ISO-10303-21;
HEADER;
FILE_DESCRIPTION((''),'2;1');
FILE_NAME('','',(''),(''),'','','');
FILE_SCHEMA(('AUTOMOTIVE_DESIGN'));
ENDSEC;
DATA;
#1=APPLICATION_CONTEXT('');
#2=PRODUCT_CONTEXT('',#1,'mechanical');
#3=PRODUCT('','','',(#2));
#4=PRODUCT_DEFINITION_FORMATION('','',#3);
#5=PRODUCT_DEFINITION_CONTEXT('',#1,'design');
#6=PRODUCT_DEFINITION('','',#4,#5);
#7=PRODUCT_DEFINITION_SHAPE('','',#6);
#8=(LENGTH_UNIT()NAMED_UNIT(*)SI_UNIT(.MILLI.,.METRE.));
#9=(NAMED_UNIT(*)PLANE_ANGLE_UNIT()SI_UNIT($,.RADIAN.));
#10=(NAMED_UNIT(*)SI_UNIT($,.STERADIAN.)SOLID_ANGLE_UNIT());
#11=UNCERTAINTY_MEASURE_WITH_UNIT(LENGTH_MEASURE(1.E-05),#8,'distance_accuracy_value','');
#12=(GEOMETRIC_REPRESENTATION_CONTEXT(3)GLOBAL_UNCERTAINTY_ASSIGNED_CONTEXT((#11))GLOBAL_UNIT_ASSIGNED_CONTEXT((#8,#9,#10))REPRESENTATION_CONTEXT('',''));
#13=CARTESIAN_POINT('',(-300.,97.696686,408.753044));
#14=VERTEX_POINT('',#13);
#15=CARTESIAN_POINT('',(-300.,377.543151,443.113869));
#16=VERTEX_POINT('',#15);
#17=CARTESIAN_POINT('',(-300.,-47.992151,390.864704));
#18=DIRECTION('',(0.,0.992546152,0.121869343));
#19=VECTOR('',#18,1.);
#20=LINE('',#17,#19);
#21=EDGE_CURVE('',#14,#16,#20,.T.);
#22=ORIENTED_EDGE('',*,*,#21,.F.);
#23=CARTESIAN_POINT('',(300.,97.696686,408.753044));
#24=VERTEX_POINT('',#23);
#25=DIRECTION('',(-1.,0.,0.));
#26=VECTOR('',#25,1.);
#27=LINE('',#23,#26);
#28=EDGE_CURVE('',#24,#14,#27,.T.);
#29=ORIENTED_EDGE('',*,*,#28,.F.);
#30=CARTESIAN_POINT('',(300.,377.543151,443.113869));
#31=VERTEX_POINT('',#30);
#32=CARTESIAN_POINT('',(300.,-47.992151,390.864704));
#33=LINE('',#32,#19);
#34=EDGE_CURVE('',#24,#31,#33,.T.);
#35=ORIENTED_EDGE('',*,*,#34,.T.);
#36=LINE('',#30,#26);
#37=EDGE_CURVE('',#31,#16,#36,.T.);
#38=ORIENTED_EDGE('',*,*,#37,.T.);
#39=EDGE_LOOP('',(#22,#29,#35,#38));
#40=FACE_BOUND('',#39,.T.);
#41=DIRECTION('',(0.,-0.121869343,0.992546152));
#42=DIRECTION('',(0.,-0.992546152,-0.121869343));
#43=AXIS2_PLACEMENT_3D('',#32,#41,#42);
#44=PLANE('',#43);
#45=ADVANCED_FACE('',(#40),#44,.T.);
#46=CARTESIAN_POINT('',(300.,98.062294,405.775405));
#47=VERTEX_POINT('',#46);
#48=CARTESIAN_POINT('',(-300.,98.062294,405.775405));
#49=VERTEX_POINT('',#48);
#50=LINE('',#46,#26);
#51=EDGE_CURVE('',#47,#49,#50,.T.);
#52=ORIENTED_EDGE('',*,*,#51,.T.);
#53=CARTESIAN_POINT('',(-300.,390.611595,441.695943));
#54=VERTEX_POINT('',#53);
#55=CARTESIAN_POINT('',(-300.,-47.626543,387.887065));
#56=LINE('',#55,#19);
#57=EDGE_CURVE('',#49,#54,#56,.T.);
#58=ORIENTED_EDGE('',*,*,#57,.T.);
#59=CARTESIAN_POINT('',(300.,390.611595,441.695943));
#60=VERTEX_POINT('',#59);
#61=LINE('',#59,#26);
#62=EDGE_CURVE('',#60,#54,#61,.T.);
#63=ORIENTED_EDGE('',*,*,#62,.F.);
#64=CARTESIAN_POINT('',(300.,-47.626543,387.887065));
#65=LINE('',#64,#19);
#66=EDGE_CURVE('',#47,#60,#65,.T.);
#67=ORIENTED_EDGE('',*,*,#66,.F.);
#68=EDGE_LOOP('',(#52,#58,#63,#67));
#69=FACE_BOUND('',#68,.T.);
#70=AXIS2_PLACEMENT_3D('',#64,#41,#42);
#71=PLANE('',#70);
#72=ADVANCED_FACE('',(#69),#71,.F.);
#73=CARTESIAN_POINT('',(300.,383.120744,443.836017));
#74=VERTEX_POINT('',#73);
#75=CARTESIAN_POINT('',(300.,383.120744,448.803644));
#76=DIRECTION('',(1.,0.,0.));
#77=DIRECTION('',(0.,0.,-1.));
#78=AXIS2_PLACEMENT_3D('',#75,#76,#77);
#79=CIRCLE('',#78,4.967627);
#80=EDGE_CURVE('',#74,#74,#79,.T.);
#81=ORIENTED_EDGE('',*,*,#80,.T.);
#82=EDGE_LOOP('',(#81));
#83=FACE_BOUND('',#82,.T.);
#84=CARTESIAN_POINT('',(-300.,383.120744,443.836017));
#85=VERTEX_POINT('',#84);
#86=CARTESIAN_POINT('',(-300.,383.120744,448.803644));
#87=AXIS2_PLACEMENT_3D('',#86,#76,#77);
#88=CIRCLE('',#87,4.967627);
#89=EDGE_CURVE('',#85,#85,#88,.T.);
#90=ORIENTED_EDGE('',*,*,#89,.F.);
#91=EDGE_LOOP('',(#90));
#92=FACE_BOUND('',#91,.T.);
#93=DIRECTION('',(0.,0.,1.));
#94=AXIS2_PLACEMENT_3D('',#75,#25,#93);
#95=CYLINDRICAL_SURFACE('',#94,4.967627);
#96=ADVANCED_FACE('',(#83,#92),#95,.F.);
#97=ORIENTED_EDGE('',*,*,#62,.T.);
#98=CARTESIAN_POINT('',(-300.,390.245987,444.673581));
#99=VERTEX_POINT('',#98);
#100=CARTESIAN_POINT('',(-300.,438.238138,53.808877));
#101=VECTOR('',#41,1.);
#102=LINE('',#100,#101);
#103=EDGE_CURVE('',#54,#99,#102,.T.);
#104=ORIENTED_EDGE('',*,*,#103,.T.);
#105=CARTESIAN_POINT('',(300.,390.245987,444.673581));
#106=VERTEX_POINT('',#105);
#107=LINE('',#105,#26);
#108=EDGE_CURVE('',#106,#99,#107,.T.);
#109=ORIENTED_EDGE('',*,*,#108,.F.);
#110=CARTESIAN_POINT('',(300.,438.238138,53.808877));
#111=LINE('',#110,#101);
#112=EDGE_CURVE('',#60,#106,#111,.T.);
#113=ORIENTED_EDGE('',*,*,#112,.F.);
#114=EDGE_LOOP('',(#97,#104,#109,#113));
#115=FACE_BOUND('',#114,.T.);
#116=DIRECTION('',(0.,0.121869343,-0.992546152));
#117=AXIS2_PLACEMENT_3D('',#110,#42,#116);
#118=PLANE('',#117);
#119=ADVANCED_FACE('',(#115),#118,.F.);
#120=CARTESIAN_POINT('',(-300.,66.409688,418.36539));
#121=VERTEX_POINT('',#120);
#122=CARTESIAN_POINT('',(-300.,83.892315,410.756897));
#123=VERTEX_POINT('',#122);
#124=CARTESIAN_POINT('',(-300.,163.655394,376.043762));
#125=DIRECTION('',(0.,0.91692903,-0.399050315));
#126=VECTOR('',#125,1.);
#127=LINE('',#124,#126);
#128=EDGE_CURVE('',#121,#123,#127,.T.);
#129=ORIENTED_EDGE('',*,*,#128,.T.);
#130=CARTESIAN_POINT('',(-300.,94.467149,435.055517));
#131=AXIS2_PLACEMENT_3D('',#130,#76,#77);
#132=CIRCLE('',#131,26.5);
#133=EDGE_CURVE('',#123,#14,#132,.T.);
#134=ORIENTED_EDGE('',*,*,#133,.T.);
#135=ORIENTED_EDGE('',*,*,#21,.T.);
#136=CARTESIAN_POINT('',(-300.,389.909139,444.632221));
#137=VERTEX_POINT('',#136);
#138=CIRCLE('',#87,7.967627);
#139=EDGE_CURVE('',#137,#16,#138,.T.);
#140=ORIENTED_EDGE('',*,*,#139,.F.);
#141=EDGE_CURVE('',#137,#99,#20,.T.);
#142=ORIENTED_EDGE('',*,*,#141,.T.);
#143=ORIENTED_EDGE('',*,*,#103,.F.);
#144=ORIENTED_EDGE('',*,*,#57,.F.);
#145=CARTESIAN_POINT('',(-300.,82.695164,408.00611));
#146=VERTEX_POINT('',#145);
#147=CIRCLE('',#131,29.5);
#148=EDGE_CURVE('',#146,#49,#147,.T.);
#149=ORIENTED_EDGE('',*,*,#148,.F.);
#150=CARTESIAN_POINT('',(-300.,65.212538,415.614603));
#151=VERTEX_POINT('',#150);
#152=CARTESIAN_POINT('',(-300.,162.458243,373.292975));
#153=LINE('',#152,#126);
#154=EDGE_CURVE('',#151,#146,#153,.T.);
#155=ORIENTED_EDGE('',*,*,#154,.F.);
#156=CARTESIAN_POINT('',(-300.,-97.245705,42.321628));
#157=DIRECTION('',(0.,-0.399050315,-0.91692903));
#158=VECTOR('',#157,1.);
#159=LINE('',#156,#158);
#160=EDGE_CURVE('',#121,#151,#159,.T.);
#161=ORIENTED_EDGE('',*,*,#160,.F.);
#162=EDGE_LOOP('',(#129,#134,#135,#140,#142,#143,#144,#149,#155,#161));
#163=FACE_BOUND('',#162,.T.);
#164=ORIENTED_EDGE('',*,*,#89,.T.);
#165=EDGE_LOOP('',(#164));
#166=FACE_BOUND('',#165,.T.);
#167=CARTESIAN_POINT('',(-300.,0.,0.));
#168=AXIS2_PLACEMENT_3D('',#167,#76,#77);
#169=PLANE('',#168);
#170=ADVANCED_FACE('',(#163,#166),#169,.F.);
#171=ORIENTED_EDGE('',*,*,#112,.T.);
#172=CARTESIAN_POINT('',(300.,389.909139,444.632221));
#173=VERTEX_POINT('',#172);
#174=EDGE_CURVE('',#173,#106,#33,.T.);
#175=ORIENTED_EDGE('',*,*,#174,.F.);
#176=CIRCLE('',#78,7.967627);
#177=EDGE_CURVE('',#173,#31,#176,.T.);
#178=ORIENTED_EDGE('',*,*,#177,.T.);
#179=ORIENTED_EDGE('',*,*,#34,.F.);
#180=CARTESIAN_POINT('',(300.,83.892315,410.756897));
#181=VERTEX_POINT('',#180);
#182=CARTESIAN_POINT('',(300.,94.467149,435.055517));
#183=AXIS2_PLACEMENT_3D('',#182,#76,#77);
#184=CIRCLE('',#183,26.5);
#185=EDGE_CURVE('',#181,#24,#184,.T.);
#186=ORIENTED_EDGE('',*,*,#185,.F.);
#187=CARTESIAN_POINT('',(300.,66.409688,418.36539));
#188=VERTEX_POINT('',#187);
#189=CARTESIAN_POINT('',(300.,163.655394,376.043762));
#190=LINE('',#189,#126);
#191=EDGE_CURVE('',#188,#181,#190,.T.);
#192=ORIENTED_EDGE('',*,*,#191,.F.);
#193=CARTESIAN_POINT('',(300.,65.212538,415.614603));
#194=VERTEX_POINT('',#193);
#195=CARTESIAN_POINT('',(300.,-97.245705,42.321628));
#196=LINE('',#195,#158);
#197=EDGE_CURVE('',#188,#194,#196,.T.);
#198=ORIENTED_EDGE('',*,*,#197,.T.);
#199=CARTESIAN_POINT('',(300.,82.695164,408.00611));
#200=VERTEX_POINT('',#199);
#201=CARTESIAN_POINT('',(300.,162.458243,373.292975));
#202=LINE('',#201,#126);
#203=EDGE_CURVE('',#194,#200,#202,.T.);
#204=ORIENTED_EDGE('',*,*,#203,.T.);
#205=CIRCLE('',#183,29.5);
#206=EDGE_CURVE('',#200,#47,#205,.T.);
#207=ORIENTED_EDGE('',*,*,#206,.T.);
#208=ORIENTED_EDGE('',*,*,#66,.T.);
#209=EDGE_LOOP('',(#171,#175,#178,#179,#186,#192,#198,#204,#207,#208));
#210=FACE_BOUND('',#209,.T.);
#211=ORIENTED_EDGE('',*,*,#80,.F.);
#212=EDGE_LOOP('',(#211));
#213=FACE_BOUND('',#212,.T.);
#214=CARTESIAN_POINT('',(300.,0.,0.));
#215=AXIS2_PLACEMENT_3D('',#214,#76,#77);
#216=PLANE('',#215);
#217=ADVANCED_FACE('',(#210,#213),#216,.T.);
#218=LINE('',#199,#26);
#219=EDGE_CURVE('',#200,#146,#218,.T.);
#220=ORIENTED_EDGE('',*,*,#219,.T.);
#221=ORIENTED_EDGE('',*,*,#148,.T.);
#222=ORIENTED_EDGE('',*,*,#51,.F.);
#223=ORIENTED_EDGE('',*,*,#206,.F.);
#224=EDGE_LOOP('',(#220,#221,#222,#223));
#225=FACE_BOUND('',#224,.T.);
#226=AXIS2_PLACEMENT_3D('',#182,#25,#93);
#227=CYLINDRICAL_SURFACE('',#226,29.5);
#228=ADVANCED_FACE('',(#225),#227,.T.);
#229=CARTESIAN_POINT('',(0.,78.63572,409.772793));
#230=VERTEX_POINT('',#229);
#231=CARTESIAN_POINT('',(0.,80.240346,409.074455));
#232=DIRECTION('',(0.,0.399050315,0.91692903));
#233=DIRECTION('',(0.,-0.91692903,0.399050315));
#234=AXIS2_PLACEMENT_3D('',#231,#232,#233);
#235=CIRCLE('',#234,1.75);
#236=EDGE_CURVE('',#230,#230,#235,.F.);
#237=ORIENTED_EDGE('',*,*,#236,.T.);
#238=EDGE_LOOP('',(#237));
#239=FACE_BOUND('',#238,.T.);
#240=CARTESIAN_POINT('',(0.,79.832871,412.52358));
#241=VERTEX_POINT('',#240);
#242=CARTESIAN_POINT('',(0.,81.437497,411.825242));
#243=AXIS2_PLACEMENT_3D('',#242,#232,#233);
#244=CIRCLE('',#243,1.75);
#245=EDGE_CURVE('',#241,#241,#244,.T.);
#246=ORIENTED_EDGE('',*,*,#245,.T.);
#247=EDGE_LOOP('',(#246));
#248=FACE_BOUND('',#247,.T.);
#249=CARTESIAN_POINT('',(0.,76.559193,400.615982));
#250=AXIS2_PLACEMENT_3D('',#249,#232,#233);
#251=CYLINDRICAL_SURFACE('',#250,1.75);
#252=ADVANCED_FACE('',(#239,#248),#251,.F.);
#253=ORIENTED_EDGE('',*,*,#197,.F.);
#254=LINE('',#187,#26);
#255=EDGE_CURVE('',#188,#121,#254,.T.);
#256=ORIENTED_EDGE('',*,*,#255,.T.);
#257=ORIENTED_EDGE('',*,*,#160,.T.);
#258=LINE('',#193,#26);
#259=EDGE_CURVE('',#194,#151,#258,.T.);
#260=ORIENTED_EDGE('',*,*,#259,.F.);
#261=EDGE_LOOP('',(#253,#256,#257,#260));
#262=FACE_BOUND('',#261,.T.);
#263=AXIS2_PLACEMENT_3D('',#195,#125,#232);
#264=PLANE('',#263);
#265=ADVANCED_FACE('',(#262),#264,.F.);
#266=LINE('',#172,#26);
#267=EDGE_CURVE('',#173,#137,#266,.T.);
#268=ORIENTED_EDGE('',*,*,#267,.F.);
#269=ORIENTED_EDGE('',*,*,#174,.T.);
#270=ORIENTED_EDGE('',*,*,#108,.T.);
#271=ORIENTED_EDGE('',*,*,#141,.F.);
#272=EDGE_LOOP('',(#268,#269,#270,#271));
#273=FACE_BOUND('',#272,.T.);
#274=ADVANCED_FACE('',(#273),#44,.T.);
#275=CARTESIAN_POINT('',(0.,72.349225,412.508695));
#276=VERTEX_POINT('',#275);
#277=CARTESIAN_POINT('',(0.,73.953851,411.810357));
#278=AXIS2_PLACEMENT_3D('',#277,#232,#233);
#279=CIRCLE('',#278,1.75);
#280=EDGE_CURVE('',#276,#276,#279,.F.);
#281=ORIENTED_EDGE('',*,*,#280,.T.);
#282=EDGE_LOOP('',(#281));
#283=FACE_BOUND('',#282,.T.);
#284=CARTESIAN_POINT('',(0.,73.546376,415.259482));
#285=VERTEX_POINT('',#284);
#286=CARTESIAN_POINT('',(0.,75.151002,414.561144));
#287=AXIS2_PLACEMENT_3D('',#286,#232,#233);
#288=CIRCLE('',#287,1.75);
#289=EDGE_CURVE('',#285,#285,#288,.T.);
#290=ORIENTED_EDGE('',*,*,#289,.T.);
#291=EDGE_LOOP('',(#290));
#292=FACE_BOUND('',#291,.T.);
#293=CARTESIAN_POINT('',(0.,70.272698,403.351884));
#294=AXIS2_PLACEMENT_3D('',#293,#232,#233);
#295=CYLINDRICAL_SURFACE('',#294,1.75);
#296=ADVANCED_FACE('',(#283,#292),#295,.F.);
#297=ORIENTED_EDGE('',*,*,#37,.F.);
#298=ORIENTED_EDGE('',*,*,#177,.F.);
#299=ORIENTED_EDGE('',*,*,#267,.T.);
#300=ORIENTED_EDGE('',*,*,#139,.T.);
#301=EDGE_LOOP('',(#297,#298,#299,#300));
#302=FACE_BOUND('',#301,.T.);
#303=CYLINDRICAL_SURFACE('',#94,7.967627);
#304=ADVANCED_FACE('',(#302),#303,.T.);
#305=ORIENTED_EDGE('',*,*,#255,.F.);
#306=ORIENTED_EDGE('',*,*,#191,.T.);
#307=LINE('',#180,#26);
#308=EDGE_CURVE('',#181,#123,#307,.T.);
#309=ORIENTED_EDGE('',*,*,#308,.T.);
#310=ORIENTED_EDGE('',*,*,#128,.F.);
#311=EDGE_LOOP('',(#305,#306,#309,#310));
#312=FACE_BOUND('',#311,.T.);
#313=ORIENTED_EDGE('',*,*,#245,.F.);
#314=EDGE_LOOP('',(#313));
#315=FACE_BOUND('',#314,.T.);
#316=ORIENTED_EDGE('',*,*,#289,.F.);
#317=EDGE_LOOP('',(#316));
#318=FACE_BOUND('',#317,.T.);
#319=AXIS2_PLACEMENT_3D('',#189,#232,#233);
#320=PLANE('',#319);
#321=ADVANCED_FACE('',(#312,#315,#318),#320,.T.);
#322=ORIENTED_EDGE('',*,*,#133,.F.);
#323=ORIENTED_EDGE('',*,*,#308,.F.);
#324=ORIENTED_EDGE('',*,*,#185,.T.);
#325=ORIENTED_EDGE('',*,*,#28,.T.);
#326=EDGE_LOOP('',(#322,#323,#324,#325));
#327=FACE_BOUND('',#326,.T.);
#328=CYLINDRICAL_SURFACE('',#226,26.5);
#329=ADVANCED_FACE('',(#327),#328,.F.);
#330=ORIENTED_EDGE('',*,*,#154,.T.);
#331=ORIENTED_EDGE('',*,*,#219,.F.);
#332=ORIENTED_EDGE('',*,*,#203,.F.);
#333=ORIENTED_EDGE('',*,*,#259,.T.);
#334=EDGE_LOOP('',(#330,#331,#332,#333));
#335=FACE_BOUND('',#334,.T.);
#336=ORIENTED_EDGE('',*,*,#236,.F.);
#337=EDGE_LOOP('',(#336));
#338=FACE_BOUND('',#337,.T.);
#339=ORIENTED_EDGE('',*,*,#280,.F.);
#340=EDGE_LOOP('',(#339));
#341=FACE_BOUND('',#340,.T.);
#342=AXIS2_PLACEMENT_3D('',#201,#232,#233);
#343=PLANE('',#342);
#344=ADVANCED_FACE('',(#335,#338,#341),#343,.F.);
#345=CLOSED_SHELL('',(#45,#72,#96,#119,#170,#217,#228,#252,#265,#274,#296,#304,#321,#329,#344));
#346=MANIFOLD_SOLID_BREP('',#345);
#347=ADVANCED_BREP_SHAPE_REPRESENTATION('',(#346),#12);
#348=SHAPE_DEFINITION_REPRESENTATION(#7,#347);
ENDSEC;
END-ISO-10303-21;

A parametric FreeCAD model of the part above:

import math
import FreeCAD as App
import Part
import Sketcher

V = App.Vector
Q = App.Units.Quantity

doc = App.newDocument("Part")
body = doc.addObject("PartDesign::Body", "Body")

sketch1 = body.newObject("Sketcher::SketchObject", "Sketch")
sketch1.AttachmentSupport = (doc.getObject("YZ_Plane"), [""])
sketch1.MapMode = "FlatFace"
sketch1.addGeometry(Part.LineSegment(V(384.09, 440.9, 0), V(390.61, 441.7, 0)), False)
sketch1.addGeometry(Part.LineSegment(V(390.61, 441.7, 0), V(390.25, 444.67, 0)), False)
sketch1.addGeometry(Part.LineSegment(V(390.25, 444.67, 0), V(389.91, 444.63, 0)), False)
sketch1.addGeometry(Part.ArcOfCircle(Part.Circle(V(383.12, 448.8, 0), V(0, 0, 1), 7.97), math.radians(-32), math.radians(226)), False)
sketch1.addGeometry(Part.LineSegment(V(377.54, 443.11, 0), V(97.7, 408.75, 0)), False)
sketch1.addGeometry(Part.ArcOfCircle(Part.Circle(V(94.47, 435.06, 0), V(0, 0, 1), 26.5), math.radians(-114), math.radians(-83)), False)
sketch1.addGeometry(Part.LineSegment(V(83.89, 410.76, 0), V(66.41, 418.37, 0)), False)
sketch1.addGeometry(Part.LineSegment(V(66.41, 418.37, 0), V(65.21, 415.61, 0)), False)
sketch1.addGeometry(Part.LineSegment(V(65.21, 415.61, 0), V(82.7, 408.01, 0)), False)
sketch1.addGeometry(Part.ArcOfCircle(Part.Circle(V(94.47, 435.06, 0), V(0, 0, 1), 29.5), math.radians(-114), math.radians(-83)), False)
sketch1.addGeometry(Part.LineSegment(V(98.06, 405.78, 0), V(384.09, 440.9, 0)), False)
sketch1.addGeometry(Part.ArcOfCircle(Part.Circle(V(383.12, 448.8, 0), V(0, 0, 1), 4.97), math.radians(-83), math.radians(270)), False)
sketch1.addGeometry(Part.ArcOfCircle(Part.Circle(V(383.12, 448.8, 0), V(0, 0, 1), 4.97), math.radians(-90), math.radians(-83)), False)
sketch1.addConstraint(Sketcher.Constraint("Coincident", 0, 2, 1, 1))
sketch1.addConstraint(Sketcher.Constraint("Coincident", 1, 2, 2, 1))
sketch1.addConstraint(Sketcher.Constraint("Coincident", 2, 2, 3, 1))
sketch1.addConstraint(Sketcher.Constraint("Coincident", 3, 2, 4, 1))
sketch1.addConstraint(Sketcher.Constraint("Tangent", 4, 2, 5, 2))
sketch1.addConstraint(Sketcher.Constraint("Tangent", 5, 1, 6, 1))
sketch1.addConstraint(Sketcher.Constraint("Coincident", 6, 2, 7, 1))
sketch1.addConstraint(Sketcher.Constraint("Coincident", 7, 2, 8, 1))
sketch1.addConstraint(Sketcher.Constraint("Tangent", 8, 2, 9, 1))
sketch1.addConstraint(Sketcher.Constraint("Tangent", 9, 2, 10, 1))
sketch1.addConstraint(Sketcher.Constraint("Coincident", 10, 2, 0, 1))
sketch1.addConstraint(Sketcher.Constraint("Tangent", 11, 1, 12, 2))
sketch1.addConstraint(Sketcher.Constraint("Coincident", 12, 1, 11, 2))
sketch1.addConstraint(Sketcher.Constraint("Coincident", 9, 3, 5, 3))
sketch1.addConstraint(Sketcher.Constraint("Coincident", 11, 3, 3, 3))
sketch1.addConstraint(Sketcher.Constraint("Perpendicular", 0, 1))
sketch1.addConstraint(Sketcher.Constraint("Perpendicular", 1, 2))
sketch1.addConstraint(Sketcher.Constraint("Parallel", 2, 4))
sketch1.addConstraint(Sketcher.Constraint("Perpendicular", 6, 7))
sketch1.addConstraint(Sketcher.Constraint("Perpendicular", 7, 8))
sketch1.addConstraint(Sketcher.Constraint("Parallel", 4, 10))
sketch1.addConstraint(Sketcher.Constraint("Vertical", 11, 3, 12, 1))
sketch1.addConstraint(Sketcher.Constraint("Equal", 1, 7))
sketch1.addConstraint(Sketcher.Constraint("Radius", 5, Q("26.5 mm")))
sketch1.addConstraint(Sketcher.Constraint("Radius", 9, Q("29.5 mm")))
sketch1.addConstraint(Sketcher.Constraint("Angle", 0, Q("7 deg")))
sketch1.addConstraint(Sketcher.Constraint("Radius", 3, Q("7.967627 mm")))
sketch1.addConstraint(Sketcher.Constraint("Radius", 11, Q("4.967627 mm")))
sketch1.addConstraint(Sketcher.Constraint("Distance", 6, Q("19.066499 mm")))
sketch1.addConstraint(Sketcher.Constraint("DistanceY", 0, 2, 11, 3, Q("7.107702 mm")))
sketch1.addConstraint(Sketcher.Constraint("DistanceY", 4, 2, 3, 3, Q("40.050601 mm")))
sketch1.addConstraint(Sketcher.Constraint("DistanceX", 11, 3, 11, 1, Q("0.605401 mm")))
sketch1.addConstraint(Sketcher.Constraint("Distance", 10, Q("288.177491 mm")))
sketch1.addConstraint(Sketcher.Constraint("DistanceX", -1, 1, 5, 3, Q("94.467149 mm")))
sketch1.addConstraint(Sketcher.Constraint("DistanceY", -1, 1, 1, 2, Q("444.673581 mm")))
sketch1.addConstraint(Sketcher.Constraint("DistanceX", -1, 1, 2, 2, Q("389.909139 mm")))
sketch1.addConstraint(Sketcher.Constraint("DistanceX", -1, 1, 6, 2, Q("66.409688 mm")))
pad1 = body.newObject("PartDesign::Pad", "Pad")
pad1.Profile = sketch1
pad1.Length = 600
pad1.Midplane = True

sketch2 = body.newObject("Sketcher::SketchObject", "Sketch001")
sketch2.Placement = App.Placement(V(0, 163.655394, 376.043762), App.Rotation(V(1, 0, 0), V(0, 0.91692903, -0.399050315), V(0, 0.399050315, 0.91692903), "ZXY"))
sketch2.addGeometry(Part.Circle(V(0, -96.5, 0), V(0, 0, 1), 1.8), False)
sketch2.addConstraint(Sketcher.Constraint("PointOnObject", 0, 3, -2))
sketch2.addConstraint(Sketcher.Constraint("Diameter", 0, Q("3.5 mm")))
sketch2.addConstraint(Sketcher.Constraint("DistanceY", 0, 3, -1, 1, Q("96.52262 mm")))
pocket1 = body.newObject("PartDesign::Pocket", "Pocket")
pocket1.Profile = sketch2
pocket1.Type = "UpToFirst"

sketch3 = body.newObject("Sketcher::SketchObject", "Sketch002")
sketch3.Placement = App.Placement(V(0, 163.655394, 376.043762), App.Rotation(V(1, 0, 0), V(0, 0.91692903, -0.399050315), V(0, 0.399050315, 0.91692903), "ZXY"))
sketch3.addGeometry(Part.Circle(V(0, -89.7, 0), V(0, 0, 1), 1.8), False)
sketch3.addConstraint(Sketcher.Constraint("PointOnObject", 0, 3, -2))
sketch3.addConstraint(Sketcher.Constraint("Diameter", 0, Q("3.5 mm")))
sketch3.addConstraint(Sketcher.Constraint("DistanceY", 0, 3, -1, 1, Q("89.666587 mm")))
pocket2 = body.newObject("PartDesign::Pocket", "Pocket001")
pocket2.Profile = sketch3
pocket2.Type = "UpToFirst"

doc.recompute()
